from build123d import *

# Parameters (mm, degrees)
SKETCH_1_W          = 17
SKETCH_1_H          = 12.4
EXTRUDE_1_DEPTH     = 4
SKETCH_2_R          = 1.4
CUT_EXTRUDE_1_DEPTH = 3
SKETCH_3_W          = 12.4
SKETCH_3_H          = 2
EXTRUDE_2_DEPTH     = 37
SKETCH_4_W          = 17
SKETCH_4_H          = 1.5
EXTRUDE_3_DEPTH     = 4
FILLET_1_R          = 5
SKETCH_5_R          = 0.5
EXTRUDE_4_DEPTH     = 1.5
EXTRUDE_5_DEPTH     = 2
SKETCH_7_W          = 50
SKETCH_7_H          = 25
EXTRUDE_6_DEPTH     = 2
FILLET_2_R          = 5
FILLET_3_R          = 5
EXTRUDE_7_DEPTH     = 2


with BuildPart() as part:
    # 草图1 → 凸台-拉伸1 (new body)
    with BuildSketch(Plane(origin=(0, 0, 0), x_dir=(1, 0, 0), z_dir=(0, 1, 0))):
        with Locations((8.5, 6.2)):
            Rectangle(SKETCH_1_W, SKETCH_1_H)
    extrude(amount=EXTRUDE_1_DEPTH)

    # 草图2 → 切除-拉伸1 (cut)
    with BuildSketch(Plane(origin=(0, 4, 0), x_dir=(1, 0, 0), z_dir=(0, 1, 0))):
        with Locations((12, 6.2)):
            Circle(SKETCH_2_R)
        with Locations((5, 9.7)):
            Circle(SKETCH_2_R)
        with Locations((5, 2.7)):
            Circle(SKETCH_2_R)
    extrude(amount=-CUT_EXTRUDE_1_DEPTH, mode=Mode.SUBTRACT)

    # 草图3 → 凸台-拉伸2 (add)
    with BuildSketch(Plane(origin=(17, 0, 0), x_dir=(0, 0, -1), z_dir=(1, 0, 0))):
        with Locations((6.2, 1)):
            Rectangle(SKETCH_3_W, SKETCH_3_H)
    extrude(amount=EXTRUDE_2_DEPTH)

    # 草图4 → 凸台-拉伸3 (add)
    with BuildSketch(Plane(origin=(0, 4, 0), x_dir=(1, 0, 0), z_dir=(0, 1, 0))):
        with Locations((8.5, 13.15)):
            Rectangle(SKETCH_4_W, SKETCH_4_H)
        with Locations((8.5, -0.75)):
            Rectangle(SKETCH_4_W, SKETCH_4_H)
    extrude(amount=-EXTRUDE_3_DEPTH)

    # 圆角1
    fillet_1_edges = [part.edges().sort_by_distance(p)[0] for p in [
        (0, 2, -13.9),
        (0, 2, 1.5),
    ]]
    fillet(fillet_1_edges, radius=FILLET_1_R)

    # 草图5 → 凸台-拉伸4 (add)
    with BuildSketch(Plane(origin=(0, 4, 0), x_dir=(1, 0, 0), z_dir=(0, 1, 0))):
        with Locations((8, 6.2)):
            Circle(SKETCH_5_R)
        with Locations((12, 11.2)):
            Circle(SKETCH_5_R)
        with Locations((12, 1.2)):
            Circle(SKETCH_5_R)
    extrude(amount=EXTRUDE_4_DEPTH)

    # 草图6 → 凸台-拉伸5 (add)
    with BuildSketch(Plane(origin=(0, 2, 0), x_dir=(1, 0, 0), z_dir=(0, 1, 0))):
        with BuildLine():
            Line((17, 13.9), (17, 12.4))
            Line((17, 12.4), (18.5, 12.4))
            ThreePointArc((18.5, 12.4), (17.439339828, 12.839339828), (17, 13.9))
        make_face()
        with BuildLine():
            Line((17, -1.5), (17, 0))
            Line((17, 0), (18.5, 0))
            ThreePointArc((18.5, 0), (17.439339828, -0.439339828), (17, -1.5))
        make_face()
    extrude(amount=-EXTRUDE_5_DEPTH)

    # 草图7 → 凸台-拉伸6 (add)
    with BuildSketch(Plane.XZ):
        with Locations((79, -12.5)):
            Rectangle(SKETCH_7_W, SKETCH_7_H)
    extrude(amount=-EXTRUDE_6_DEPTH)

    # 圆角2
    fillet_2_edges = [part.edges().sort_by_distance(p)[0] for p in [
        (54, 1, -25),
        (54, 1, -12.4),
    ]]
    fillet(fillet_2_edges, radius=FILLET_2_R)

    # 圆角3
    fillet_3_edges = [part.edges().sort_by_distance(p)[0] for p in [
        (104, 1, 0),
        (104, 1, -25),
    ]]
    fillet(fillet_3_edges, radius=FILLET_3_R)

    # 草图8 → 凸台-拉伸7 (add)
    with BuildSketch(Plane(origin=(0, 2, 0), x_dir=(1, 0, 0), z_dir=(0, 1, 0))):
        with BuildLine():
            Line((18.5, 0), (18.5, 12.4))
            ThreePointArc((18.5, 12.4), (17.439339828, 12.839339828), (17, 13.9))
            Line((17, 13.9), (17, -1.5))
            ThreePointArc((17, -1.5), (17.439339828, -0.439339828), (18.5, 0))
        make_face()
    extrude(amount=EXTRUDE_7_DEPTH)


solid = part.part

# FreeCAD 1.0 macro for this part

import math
import FreeCAD as App
import Part
import Sketcher
from FreeCAD import Vector
Q = App.Units.Quantity


def edges_at(feature, points):
    """Names of the edges that pass closest to the given points."""
    edges = feature.Shape.Edges
    near = lambda p: min(range(len(edges)), key=lambda i: edges[i].distToShape(Part.Vertex(*p))[0])
    return sorted({f"Edge{near(p) + 1}" for p in points})


def add_polygon(sketch, points):
    """Adds a closed chain of lines whose ends are joined by coincident constraints."""
    first, n = sketch.GeometryCount, len(points)
    for a, b in zip(points, points[1:] + points[:1]):
        sketch.addGeometry(Part.LineSegment(App.Vector(*a, 0), App.Vector(*b, 0)), False)
    for i in range(n):
        sketch.addConstraint(Sketcher.Constraint("Coincident", first + i, 2, first + (i + 1) % n, 1))

doc = App.newDocument("Part")
body = doc.addObject("PartDesign::Body", "Body")

sketch1 = body.newObject("Sketcher::SketchObject", "Sketch")
sketch1.AttachmentSupport = (doc.getObject("XZ_Plane"), [""])
sketch1.MapMode = "FlatFace"
add_polygon(sketch1, [(0, -12), (0, 0), (17, 0), (17, -12)])
sketch1.addConstraint([
    Sketcher.Constraint("Vertical", 0),
    Sketcher.Constraint("Horizontal", 1),
    Sketcher.Constraint("Vertical", 2),
    Sketcher.Constraint("Horizontal", 3),
    Sketcher.Constraint("Coincident", 0, 2, -1, 1),
    Sketcher.Constraint("DistanceX", 1, 1, 1, 2, Q("17 mm")),
    Sketcher.Constraint("DistanceY", 0, 1, 0, 2, Q("12.4 mm")),
])
pad1 = body.newObject("PartDesign::Pad", "Pad")
pad1.Profile = sketch1
pad1.Length = 4
pad1.Reversed = True

sketch2 = body.newObject("Sketcher::SketchObject", "Sketch001")
sketch2.AttachmentSupport = (doc.getObject("XZ_Plane"), [""])
sketch2.MapMode = "FlatFace"
sketch2.AttachmentOffset = App.Placement(Vector(0, 0, -4), App.Rotation())
sketch2.addGeometry([
    Part.Circle(Vector(12, -6.2, 0), Vector(0, 0, 1), 1.4),
    Part.Circle(Vector(5, -9.7, 0), Vector(0, 0, 1), 1.4),
    Part.Circle(Vector(5, -2.7, 0), Vector(0, 0, 1), 1.4),
], False)
sketch2.addConstraint([
    Sketcher.Constraint("Equal", 0, 1),
    Sketcher.Constraint("Equal", 1, 2),
    Sketcher.Constraint("Vertical", 1, 3, 2, 3),
    Sketcher.Constraint("Diameter", 0, Q("2.8 mm")),
    Sketcher.Constraint("DistanceX", -1, 1, 0, 3, Q("12 mm")),
    Sketcher.Constraint("DistanceX", -1, 1, 1, 3, Q("5 mm")),
    Sketcher.Constraint("DistanceY", 1, 3, 2, 3, Q("7 mm")),
    Sketcher.Constraint("DistanceY", 0, 3, -1, 1, Q("6.2 mm")),
    Sketcher.Constraint("DistanceY", 1, 3, -1, 1, Q("9.7 mm")),
])
pocket1 = body.newObject("PartDesign::Pocket", "Pocket")
pocket1.Profile = sketch2
pocket1.Length = 3
pocket1.Reversed = True

sketch3 = body.newObject("Sketcher::SketchObject", "Sketch002")
sketch3.AttachmentSupport = (doc.getObject("YZ_Plane"), [""])
sketch3.MapMode = "FlatFace"
sketch3.AttachmentOffset = App.Placement(Vector(0, 0, 17), App.Rotation())
add_polygon(sketch3, [(2, 0), (0, 0), (0, -12.4), (2, -12.4)])
sketch3.addConstraint([
    Sketcher.Constraint("Horizontal", 0),
    Sketcher.Constraint("Vertical", 1),
    Sketcher.Constraint("Horizontal", 2),
    Sketcher.Constraint("Vertical", 3),
    Sketcher.Constraint("Coincident", 0, 2, -1, 1),
    Sketcher.Constraint("DistanceX", 0, 2, 0, 1, Q("2 mm")),
    Sketcher.Constraint("DistanceY", 1, 2, 1, 1, Q("12.4 mm")),
])
pad2 = body.newObject("PartDesign::Pad", "Pad001")
pad2.Profile = sketch3
pad2.Length = 37

sketch4 = body.newObject("Sketcher::SketchObject", "Sketch003")
sketch4.AttachmentSupport = (doc.getObject("XZ_Plane"), [""])
sketch4.MapMode = "FlatFace"
sketch4.AttachmentOffset = App.Placement(Vector(0, 0, -4), App.Rotation())
add_polygon(sketch4, [(0, -13.9), (0, -12.4), (17, -12.4), (17, -13.9)])
add_polygon(sketch4, [(0, 0), (0, 1.5), (17, 1.5), (17, 0)])
sketch4.addConstraint([
    Sketcher.Constraint("Vertical", 0),
    Sketcher.Constraint("Horizontal", 1),
    Sketcher.Constraint("Vertical", 2),
    Sketcher.Constraint("Horizontal", 3),
    Sketcher.Constraint("Vertical", 4),
    Sketcher.Constraint("Horizontal", 5),
    Sketcher.Constraint("Vertical", 6),
    Sketcher.Constraint("Horizontal", 7),
    Sketcher.Constraint("Coincident", 7, 2, -1, 1),
    Sketcher.Constraint("PointOnObject", 0, 2, -2),
    Sketcher.Constraint("Vertical", 2, 2, 5, 2),
    Sketcher.Constraint("Equal", 2, 4),
    Sketcher.Constraint("DistanceX", 1, 1, 1, 2, Q("17 mm")),
    Sketcher.Constraint("DistanceY", 0, 1, 0, 2, Q("1.5 mm")),
    Sketcher.Constraint("DistanceY", 0, 2, -1, 1, Q("12.4 mm")),
])
pad3 = body.newObject("PartDesign::Pad", "Pad002")
pad3.Profile = sketch4
pad3.Length = 4
doc.recompute()

fillet = body.newObject("PartDesign::Fillet", "Fillet")
fillet.Base = (pad3, edges_at(pad3, [(0, 2, -13.9), (0, 2, 1.5)]))
fillet.Radius = 5

sketch5 = body.newObject("Sketcher::SketchObject", "Sketch004")
sketch5.AttachmentSupport = (doc.getObject("XZ_Plane"), [""])
sketch5.MapMode = "FlatFace"
sketch5.AttachmentOffset = App.Placement(Vector(0, 0, -4), App.Rotation())
sketch5.addGeometry([
    Part.Circle(Vector(8, -6.2, 0), Vector(0, 0, 1), 0.5),
    Part.Circle(Vector(12, -11.2, 0), Vector(0, 0, 1), 0.5),
    Part.Circle(Vector(12, -1.2, 0), Vector(0, 0, 1), 0.5),
], False)
sketch5.addConstraint([
    Sketcher.Constraint("Equal", 0, 1),
    Sketcher.Constraint("Equal", 1, 2),
    Sketcher.Constraint("Vertical", 1, 3, 2, 3),
    Sketcher.Constraint("Diameter", 0, Q("1 mm")),
    Sketcher.Constraint("DistanceX", -1, 1, 0, 3, Q("8 mm")),
    Sketcher.Constraint("DistanceX", -1, 1, 1, 3, Q("12 mm")),
    Sketcher.Constraint("DistanceY", 1, 3, 0, 3, Q("5 mm")),
    Sketcher.Constraint("DistanceY", 0, 3, 2, 3, Q("5 mm")),
    Sketcher.Constraint("DistanceY", 0, 3, -1, 1, Q("6.2 mm")),
])
pad4 = body.newObject("PartDesign::Pad", "Pad003")
pad4.Profile = sketch5
pad4.Length = 1.5
pad4.Reversed = True

sketch6 = body.newObject("Sketcher::SketchObject", "Sketch005")
sketch6.AttachmentSupport = (doc.getObject("XZ_Plane"), [""])
sketch6.MapMode = "FlatFace"
sketch6.AttachmentOffset = App.Placement(Vector(0, 0, -2), App.Rotation())
sketch6.addGeometry([
    Part.LineSegment(Vector(17, -13.9, 0), Vector(17, -12.4, 0)),
    Part.LineSegment(Vector(17, -12.4, 0), Vector(18.5, -12.4, 0)),
    Part.ArcOfCircle(Part.Circle(Vector(18.5, -13.9, 0), Vector(0, 0, 1), 1.5), math.radians(90), math.radians(180)),
    Part.LineSegment(Vector(17, 0, 0), Vector(17, 1.5, 0)),
    Part.ArcOfCircle(Part.Circle(Vector(18.5, 1.5, 0), Vector(0, 0, 1), 1.5), math.radians(180), math.radians(270)),
    Part.LineSegment(Vector(18.5, 0, 0), Vector(17, 0, 0)),
], False)
sketch6.addConstraint([
    Sketcher.Constraint("Coincident", 0, 2, 1, 1),
    Sketcher.Constraint("Tangent", 1, 2, 2, 1),
    Sketcher.Constraint("Tangent", 2, 2, 0, 1),
    Sketcher.Constraint("Tangent", 3, 2, 4, 1),
    Sketcher.Constraint("Tangent", 4, 2, 5, 1),
    Sketcher.Constraint("Coincident", 5, 2, 3, 1),
    Sketcher.Constraint("Vertical", 0),
    Sketcher.Constraint("Horizontal", 1),
    Sketcher.Constraint("Vertical", 3),
    Sketcher.Constraint("Horizontal", 5),
    Sketcher.Constraint("Equal", 2, 4),
    Sketcher.Constraint("PointOnObject", 4, 2, -1),
    Sketcher.Constraint("Vertical", 2, 3, 4, 3),
    Sketcher.Constraint("Radius", 2, Q("1.5 mm")),
    Sketcher.Constraint("DistanceX", -1, 1, 0, 2, Q("17 mm")),
    Sketcher.Constraint("DistanceY", 2, 3, -1, 1, Q("13.9 mm")),
])
pad5 = body.newObject("PartDesign::Pad", "Pad004")
pad5.Profile = sketch6
pad5.Length = 2

sketch7 = body.newObject("Sketcher::SketchObject", "Sketch006")
sketch7.AttachmentSupport = (doc.getObject("XZ_Plane"), [""])
sketch7.MapMode = "FlatFace"
add_polygon(sketch7, [(54, 0), (54, -25), (104, -25), (104, 0)])
sketch7.addConstraint([
    Sketcher.Constraint("Vertical", 0),
    Sketcher.Constraint("Horizontal", 1),
    Sketcher.Constraint("Vertical", 2),
    Sketcher.Constraint("Horizontal", 3),
    Sketcher.Constraint("PointOnObject", 2, 2, -1),
    Sketcher.Constraint("DistanceX", 1, 1, 1, 2, Q("50 mm")),
    Sketcher.Constraint("DistanceY", 0, 2, 0, 1, Q("25 mm")),
    Sketcher.Constraint("DistanceX", -1, 1, 0, 2, Q("54 mm")),
])
pad6 = body.newObject("PartDesign::Pad", "Pad005")
pad6.Profile = sketch7
pad6.Length = 2
pad6.Reversed = True
doc.recompute()

fillet2 = body.newObject("PartDesign::Fillet", "Fillet001")
fillet2.Base = (pad6, edges_at(pad6, [(54, 1, -25), (54, 1, -12.4)]))
fillet2.Radius = 5
doc.recompute()

fillet3 = body.newObject("PartDesign::Fillet", "Fillet002")
fillet3.Base = (fillet2, edges_at(fillet2, [(104, 1, 0), (104, 1, -25)]))
fillet3.Radius = 5

sketch8 = body.newObject("Sketcher::SketchObject", "Sketch007")
sketch8.AttachmentSupport = (doc.getObject("XZ_Plane"), [""])
sketch8.MapMode = "FlatFace"
sketch8.AttachmentOffset = App.Placement(Vector(0, 0, -2), App.Rotation())
sketch8.addGeometry([
    Part.LineSegment(Vector(18.5, 0, 0), Vector(18.5, -12.4, 0)),
    Part.ArcOfCircle(Part.Circle(Vector(18.5, -13.9, 0), Vector(0, 0, 1), 1.5), math.radians(90), math.radians(180)),
    Part.LineSegment(Vector(17, -13.9, 0), Vector(17, 1.5, 0)),
    Part.ArcOfCircle(Part.Circle(Vector(18.5, 1.5, 0), Vector(0, 0, 1), 1.5), math.radians(180), math.radians(270)),
], False)
sketch8.addConstraint([
    Sketcher.Constraint("Coincident", 0, 2, 1, 1),
    Sketcher.Constraint("Tangent", 1, 2, 2, 1),
    Sketcher.Constraint("Tangent", 2, 2, 3, 1),
    Sketcher.Constraint("Coincident", 3, 2, 0, 1),
    Sketcher.Constraint("Vertical", 0),
    Sketcher.Constraint("Vertical", 2),
    Sketcher.Constraint("Equal", 1, 3),
    Sketcher.Constraint("PointOnObject", 3, 2, -1),
    Sketcher.Constraint("Vertical", 3, 3, 0, 2),
    Sketcher.Constraint("Radius", 1, Q("1.5 mm")),
    Sketcher.Constraint("DistanceY", 0, 2, 0, 1, Q("12.4 mm")),
    Sketcher.Constraint("DistanceX", -1, 1, 1, 2, Q("17 mm")),
])
pad7 = body.newObject("PartDesign::Pad", "Pad006")
pad7.Profile = sketch8
pad7.Length = 2
pad7.Reversed = True

doc.recompute()
